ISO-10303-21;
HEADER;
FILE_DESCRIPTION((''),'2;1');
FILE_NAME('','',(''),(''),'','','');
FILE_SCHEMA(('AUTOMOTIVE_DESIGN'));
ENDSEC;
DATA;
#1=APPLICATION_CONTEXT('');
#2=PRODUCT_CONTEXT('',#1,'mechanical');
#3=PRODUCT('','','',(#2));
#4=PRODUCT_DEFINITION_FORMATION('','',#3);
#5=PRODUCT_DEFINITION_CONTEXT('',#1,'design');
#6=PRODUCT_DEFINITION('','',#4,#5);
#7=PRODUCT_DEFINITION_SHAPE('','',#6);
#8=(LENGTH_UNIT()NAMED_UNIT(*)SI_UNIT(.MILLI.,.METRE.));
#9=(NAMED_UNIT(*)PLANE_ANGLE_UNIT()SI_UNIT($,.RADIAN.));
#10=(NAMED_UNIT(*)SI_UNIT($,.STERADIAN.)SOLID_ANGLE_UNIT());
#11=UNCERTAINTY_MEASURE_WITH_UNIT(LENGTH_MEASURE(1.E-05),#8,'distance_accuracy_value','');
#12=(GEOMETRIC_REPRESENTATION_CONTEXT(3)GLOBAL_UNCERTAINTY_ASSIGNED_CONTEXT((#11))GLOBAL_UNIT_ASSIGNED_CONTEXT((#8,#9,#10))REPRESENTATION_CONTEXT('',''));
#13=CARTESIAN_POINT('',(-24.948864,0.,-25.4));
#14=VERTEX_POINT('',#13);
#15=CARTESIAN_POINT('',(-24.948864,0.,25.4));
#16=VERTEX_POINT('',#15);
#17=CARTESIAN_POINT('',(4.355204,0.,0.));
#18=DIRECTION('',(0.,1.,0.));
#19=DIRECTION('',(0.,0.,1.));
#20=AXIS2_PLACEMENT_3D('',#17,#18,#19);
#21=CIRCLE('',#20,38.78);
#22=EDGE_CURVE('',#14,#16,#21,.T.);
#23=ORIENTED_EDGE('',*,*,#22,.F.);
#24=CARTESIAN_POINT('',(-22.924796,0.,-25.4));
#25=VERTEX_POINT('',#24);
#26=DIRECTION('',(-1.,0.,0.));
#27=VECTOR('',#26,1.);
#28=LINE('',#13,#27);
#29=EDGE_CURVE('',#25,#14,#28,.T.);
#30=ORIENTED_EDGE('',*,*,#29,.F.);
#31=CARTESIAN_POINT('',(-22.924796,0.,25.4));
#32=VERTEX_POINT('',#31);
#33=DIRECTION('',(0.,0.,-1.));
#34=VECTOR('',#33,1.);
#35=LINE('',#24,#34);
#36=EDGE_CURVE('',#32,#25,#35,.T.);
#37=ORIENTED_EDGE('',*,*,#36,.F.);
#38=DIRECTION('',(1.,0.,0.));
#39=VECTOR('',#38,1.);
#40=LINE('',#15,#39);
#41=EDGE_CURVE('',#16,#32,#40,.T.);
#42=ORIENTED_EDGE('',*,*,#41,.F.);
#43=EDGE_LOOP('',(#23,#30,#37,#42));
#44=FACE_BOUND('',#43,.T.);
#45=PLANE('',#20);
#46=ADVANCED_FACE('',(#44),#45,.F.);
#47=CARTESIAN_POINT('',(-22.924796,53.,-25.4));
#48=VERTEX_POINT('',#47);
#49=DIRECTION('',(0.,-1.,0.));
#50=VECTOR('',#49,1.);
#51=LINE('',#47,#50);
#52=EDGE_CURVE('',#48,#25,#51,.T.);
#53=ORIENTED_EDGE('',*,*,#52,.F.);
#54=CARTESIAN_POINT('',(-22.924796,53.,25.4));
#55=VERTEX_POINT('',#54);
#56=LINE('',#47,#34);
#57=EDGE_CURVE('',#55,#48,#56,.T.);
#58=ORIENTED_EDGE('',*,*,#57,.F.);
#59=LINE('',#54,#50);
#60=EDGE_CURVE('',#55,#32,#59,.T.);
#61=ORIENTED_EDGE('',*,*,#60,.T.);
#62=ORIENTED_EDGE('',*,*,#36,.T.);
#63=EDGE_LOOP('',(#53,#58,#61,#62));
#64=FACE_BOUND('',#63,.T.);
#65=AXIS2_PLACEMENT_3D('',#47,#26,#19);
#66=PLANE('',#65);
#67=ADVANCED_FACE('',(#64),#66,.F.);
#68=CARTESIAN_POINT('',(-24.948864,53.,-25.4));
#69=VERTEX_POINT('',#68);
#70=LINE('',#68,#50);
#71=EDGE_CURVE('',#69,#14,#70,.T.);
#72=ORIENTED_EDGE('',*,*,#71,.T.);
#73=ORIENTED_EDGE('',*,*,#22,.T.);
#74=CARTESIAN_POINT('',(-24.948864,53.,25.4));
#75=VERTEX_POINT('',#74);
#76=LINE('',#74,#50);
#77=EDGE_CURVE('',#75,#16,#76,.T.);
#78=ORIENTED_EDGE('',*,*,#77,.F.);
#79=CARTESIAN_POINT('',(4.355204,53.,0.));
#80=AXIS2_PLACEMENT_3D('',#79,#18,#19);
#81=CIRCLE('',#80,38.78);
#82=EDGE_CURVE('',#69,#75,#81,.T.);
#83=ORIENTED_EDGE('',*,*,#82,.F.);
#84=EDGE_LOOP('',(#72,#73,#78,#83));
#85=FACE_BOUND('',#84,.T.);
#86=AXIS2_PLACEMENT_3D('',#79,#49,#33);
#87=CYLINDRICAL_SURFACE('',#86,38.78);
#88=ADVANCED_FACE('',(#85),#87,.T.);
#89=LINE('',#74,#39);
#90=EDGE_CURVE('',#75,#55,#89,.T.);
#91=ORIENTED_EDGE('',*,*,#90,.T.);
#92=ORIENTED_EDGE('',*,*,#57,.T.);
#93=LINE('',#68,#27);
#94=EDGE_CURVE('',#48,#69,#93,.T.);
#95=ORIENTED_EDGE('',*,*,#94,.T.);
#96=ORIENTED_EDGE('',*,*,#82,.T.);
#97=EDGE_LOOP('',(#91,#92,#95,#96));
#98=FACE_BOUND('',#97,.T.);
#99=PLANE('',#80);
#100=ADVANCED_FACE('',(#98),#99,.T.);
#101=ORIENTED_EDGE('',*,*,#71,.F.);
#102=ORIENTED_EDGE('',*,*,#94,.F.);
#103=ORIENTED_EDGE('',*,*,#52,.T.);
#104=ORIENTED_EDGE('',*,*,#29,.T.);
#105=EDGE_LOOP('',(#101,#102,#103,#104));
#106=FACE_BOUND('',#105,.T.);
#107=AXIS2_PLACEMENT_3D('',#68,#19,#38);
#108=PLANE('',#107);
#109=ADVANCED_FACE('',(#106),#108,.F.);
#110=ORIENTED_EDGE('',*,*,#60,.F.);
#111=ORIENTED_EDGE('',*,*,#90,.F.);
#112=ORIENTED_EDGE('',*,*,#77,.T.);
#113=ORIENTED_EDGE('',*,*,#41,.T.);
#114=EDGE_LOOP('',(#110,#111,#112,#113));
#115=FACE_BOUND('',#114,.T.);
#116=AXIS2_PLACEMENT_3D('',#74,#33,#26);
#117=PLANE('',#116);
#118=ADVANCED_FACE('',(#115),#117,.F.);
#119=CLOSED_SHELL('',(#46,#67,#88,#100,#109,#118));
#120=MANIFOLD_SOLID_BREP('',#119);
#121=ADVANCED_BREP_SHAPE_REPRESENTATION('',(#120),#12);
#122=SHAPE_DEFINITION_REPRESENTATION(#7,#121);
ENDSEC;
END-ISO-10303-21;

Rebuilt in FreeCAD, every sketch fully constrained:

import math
import FreeCAD as App
import Part
import Sketcher
from FreeCAD import Vector

doc = App.newDocument("Part")
body = doc.addObject("PartDesign::Body", "Body")

# Sketch on XZ plane
sketch1 = body.newObject("Sketcher::SketchObject", "Sketch")
sketch1.AttachmentSupport = (doc.getObject("XZ_Plane"), [""])
sketch1.MapMode = "FlatFace"
sketch1.addGeometry(Part.LineSegment(Vector(-22.9, -25.4, 0), Vector(-24.9, -25.4, 0)), False)
sketch1.addGeometry(Part.ArcOfCircle(Part.Circle(Vector(4.4, 0, 0), Vector(0, 0, 1), 38.8), math.radians(139), math.radians(221)), False)
sketch1.addGeometry(Part.LineSegment(Vector(-24.9, 25.4, 0), Vector(-22.9, 25.4, 0)), False)
sketch1.addGeometry(Part.LineSegment(Vector(-22.9, 25.4, 0), Vector(-22.9, -25.4, 0)), False)
sketch1.addConstraint(Sketcher.Constraint("Coincident", 0, 2, 1, 2))
sketch1.addConstraint(Sketcher.Constraint("Coincident", 1, 1, 2, 1))
sketch1.addConstraint(Sketcher.Constraint("Coincident", 2, 2, 3, 1))
sketch1.addConstraint(Sketcher.Constraint("Coincident", 3, 2, 0, 1))
sketch1.addConstraint(Sketcher.Constraint("Horizontal", 0))
sketch1.addConstraint(Sketcher.Constraint("Horizontal", 2))
sketch1.addConstraint(Sketcher.Constraint("Vertical", 3))
sketch1.addConstraint(Sketcher.Constraint("Symmetric", 0, 2, 1, 1, -1))
sketch1.addConstraint(Sketcher.Constraint("Radius", 1, 38.78))
sketch1.addConstraint(Sketcher.Constraint("DistanceY", 3, 2, 3, 1, 50.8))
sketch1.addConstraint(Sketcher.Constraint("DistanceX", 2, 2, 1, 3, 27.28))
sketch1.addConstraint(Sketcher.Constraint("DistanceX", -1, 1, 1, 3, 4.355204))
pad1 = body.newObject("PartDesign::Pad", "Pad")
pad1.Profile = sketch1
pad1.Length = 53
pad1.Reversed = True

doc.recompute()
